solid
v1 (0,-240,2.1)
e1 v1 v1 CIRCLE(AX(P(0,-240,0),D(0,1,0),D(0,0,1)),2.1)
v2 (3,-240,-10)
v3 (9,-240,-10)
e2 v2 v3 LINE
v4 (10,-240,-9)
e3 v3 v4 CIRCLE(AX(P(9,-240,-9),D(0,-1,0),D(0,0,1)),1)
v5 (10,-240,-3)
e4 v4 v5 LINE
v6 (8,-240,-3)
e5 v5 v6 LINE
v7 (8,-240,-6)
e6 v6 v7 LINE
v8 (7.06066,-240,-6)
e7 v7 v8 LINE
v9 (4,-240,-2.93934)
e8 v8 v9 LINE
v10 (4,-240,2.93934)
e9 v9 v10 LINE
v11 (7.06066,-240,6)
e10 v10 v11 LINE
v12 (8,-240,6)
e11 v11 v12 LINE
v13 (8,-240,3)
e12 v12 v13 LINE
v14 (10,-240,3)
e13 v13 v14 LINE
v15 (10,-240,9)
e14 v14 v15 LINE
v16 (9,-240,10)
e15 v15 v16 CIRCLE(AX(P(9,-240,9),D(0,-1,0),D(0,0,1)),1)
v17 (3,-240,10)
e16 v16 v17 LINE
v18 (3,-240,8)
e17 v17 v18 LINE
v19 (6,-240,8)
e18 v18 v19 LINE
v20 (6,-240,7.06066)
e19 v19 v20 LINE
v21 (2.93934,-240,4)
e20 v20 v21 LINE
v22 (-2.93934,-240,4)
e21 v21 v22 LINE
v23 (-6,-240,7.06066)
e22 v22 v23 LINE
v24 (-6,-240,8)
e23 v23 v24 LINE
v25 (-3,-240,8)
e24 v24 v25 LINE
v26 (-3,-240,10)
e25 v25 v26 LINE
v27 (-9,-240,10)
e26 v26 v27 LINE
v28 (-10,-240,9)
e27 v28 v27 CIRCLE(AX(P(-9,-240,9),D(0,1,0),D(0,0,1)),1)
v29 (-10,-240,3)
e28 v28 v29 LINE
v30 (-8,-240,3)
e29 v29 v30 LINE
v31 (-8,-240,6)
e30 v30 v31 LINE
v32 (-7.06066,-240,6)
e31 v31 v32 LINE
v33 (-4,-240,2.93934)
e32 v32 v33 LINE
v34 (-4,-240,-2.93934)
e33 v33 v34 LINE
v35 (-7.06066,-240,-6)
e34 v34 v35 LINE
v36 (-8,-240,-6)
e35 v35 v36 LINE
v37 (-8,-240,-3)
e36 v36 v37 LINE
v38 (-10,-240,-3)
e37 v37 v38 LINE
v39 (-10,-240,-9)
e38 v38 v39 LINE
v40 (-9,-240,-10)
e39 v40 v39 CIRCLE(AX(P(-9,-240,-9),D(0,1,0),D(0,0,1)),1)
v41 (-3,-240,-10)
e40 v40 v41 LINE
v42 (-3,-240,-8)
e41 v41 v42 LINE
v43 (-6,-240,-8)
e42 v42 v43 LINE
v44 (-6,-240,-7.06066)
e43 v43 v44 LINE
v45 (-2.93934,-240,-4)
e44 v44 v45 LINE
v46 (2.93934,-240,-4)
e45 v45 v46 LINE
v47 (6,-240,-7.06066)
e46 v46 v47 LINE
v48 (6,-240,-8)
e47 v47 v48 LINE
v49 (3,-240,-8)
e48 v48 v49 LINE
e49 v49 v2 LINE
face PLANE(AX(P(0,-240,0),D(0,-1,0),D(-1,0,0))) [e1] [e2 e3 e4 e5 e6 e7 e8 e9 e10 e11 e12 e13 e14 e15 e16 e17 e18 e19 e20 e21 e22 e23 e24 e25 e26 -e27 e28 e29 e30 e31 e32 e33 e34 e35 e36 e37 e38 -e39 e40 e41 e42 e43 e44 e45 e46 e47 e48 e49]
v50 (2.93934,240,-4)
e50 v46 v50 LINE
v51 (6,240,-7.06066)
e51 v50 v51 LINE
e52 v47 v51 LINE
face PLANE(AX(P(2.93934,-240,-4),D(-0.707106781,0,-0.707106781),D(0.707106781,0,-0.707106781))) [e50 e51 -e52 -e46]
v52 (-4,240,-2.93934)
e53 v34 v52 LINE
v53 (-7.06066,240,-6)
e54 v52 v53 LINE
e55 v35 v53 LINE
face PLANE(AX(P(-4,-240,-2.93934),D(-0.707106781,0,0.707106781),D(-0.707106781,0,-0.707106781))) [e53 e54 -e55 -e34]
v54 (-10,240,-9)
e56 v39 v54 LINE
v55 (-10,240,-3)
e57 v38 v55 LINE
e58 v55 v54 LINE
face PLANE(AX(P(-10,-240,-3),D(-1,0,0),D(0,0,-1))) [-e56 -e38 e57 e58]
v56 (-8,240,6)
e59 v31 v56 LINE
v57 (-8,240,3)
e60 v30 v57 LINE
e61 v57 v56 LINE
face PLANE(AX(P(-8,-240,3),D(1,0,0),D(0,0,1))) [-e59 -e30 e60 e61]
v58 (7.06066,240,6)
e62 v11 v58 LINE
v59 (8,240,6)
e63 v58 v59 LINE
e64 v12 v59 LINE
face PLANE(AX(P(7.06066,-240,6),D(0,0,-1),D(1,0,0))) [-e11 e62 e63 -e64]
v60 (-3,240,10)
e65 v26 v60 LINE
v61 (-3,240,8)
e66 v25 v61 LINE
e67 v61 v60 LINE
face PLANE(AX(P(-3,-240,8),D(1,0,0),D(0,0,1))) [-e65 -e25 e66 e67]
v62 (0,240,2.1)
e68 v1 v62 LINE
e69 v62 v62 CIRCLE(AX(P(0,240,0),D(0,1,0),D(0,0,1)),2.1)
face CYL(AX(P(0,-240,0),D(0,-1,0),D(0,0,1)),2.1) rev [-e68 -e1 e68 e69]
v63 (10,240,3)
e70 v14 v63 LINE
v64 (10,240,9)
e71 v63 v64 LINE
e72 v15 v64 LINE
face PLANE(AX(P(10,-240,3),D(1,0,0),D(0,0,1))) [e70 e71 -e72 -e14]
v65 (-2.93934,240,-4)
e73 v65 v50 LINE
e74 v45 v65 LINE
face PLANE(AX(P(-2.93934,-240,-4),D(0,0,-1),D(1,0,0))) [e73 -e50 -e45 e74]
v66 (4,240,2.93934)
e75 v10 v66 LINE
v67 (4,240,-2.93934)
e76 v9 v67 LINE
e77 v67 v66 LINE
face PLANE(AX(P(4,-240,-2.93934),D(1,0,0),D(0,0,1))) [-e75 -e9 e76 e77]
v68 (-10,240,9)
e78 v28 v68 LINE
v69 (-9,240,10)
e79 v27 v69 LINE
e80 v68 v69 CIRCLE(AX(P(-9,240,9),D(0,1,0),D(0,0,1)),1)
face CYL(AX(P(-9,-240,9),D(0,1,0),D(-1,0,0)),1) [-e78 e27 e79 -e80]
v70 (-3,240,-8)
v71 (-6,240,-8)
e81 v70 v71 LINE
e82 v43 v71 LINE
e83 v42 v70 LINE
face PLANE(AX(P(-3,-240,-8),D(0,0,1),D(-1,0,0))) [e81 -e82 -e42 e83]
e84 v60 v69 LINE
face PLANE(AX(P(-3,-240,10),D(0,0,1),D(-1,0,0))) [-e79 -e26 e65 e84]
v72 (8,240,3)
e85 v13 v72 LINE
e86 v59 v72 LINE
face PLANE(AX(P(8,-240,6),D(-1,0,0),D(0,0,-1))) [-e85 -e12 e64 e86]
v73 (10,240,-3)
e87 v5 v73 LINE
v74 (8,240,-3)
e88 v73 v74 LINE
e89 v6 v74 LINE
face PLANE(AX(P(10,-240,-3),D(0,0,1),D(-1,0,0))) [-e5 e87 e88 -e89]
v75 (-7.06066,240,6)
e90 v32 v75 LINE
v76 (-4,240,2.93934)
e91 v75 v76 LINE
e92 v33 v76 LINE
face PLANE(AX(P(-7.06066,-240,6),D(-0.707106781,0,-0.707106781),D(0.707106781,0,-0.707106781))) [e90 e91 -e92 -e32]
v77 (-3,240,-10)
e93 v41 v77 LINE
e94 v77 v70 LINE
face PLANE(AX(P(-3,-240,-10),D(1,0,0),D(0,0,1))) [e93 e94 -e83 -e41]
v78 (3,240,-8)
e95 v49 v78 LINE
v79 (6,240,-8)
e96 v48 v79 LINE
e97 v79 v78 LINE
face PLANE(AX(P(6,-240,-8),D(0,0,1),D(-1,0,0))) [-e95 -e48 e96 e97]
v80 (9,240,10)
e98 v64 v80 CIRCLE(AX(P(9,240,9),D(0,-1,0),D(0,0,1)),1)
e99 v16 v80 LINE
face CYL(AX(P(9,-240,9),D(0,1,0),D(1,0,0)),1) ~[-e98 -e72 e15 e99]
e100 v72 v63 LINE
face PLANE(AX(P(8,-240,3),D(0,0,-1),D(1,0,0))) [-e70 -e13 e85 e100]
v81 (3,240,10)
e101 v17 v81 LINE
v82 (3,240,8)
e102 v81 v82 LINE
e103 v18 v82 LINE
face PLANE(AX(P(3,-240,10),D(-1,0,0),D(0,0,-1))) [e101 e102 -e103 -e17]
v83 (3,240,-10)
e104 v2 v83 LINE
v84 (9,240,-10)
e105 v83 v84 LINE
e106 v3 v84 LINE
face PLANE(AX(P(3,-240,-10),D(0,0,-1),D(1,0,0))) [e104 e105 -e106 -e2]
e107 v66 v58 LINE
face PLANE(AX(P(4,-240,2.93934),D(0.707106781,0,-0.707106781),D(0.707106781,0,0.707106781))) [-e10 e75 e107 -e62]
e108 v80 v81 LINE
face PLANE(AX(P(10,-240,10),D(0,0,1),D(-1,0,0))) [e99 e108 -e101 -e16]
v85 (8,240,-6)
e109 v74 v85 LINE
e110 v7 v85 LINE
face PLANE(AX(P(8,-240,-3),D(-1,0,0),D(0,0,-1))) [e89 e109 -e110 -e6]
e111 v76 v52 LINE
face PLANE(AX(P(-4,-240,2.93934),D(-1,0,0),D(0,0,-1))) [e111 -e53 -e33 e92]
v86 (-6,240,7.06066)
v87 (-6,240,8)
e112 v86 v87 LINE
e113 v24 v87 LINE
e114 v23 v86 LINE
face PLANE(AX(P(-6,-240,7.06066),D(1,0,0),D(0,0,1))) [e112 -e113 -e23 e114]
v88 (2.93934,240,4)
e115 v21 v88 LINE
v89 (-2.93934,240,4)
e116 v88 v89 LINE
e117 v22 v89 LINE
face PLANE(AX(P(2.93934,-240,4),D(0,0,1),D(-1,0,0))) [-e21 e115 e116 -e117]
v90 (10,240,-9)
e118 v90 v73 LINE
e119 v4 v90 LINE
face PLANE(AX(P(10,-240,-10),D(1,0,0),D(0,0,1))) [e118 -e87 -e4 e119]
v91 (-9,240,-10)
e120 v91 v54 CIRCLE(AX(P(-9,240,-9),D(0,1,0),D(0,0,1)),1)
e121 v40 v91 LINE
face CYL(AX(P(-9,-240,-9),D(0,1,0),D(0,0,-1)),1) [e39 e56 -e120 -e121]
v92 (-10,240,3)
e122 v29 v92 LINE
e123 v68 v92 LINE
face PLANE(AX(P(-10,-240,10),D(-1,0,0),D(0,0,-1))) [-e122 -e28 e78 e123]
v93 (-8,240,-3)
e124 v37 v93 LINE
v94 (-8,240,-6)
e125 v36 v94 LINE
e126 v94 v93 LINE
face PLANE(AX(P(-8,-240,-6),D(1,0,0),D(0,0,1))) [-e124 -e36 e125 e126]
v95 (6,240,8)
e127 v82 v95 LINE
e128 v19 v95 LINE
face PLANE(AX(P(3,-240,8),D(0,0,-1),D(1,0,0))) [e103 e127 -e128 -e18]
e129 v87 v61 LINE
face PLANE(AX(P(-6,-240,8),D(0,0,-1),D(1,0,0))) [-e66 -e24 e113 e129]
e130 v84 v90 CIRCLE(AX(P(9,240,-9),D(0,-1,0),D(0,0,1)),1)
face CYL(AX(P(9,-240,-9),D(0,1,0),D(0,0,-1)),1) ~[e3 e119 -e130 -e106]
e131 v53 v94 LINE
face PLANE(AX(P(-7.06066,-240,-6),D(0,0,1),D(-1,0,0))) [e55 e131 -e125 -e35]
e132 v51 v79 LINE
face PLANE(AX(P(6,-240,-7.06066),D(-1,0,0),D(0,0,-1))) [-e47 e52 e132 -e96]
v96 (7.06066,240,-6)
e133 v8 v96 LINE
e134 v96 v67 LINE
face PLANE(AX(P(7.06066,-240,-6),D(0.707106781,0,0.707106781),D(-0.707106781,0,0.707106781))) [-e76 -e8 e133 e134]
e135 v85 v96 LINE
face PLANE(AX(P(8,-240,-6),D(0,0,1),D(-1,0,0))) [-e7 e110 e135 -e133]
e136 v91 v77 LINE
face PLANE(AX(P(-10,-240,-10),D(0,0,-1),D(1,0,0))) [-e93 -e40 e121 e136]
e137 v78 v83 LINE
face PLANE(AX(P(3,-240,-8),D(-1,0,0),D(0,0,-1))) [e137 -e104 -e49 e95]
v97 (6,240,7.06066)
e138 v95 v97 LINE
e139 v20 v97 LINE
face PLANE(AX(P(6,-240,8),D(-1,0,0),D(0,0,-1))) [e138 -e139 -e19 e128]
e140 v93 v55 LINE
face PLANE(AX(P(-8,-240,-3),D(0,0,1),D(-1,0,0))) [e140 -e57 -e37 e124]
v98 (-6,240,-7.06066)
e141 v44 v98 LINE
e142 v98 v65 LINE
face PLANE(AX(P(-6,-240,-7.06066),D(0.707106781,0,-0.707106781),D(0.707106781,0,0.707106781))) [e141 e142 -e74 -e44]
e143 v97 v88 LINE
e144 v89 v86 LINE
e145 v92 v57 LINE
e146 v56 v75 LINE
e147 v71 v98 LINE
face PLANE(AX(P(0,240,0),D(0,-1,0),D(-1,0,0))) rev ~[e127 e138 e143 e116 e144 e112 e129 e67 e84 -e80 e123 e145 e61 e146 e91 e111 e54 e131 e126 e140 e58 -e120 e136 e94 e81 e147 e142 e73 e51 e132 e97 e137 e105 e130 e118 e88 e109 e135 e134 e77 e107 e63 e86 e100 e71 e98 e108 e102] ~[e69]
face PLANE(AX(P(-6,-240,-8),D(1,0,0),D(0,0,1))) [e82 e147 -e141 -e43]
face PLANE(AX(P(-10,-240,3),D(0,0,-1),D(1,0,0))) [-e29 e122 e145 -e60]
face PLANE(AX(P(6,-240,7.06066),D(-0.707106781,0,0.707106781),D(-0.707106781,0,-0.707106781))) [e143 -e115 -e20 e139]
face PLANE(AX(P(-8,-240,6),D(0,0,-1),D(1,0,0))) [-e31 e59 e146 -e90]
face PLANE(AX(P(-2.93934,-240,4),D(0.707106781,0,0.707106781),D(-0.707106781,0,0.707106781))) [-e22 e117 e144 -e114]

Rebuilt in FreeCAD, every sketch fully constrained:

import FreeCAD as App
import Part
import Sketcher
Q = App.Units.Quantity


def edges_at(feature, points):
    """Names of the edges that pass closest to the given points."""
    edges = feature.Shape.Edges
    near = lambda p: min(range(len(edges)), key=lambda i: edges[i].distToShape(Part.Vertex(*p))[0])
    return sorted({f"Edge{near(p) + 1}" for p in points})

doc = App.newDocument("Part")
params = doc.addObject("Spreadsheet::Sheet", "Params")
for row, (alias, value) in enumerate([
    ("sketch1_diameter", "4.2 mm"),
    ("sketch1_width", "7 mm"),
    ("sketch1_width2", "2 mm"),
    ("sketch1_width3", "3 mm"),
    ("pad1_length", "240 mm"),
    ("pad1_length2", "240 mm"),
    ("fillet_radius", "1 mm"),
], start=1):
    params.set(f"A{row}", alias)
    params.set(f"B{row}", "=" + value)
    params.setAlias(f"B{row}", alias)

body = doc.addObject("PartDesign::Body", "Body")

sketch1 = body.newObject("Sketcher::SketchObject", "Sketch")
sketch1.AttachmentSupport = (doc.getObject("XZ_Plane"), [""])
sketch1.MapMode = "FlatFace"
sketch1.addGeometry(Part.LineSegment(App.Vector(-3, -10, 0), App.Vector(-10, -10, 0)), False)
sketch1.addGeometry(Part.LineSegment(App.Vector(-10, -10, 0), App.Vector(-10, -3, 0)), False)
sketch1.addGeometry(Part.LineSegment(App.Vector(-10, -3, 0), App.Vector(-8, -3, 0)), False)
sketch1.addGeometry(Part.LineSegment(App.Vector(-8, -3, 0), App.Vector(-8, -6, 0)), False)
sketch1.addGeometry(Part.LineSegment(App.Vector(-8, -6, 0), App.Vector(-7.1, -6, 0)), False)
sketch1.addGeometry(Part.LineSegment(App.Vector(-7.1, -6, 0), App.Vector(-4, -2.9, 0)), False)
sketch1.addGeometry(Part.LineSegment(App.Vector(-4, -2.9, 0), App.Vector(-4, 2.9, 0)), False)
sketch1.addGeometry(Part.LineSegment(App.Vector(-4, 2.9, 0), App.Vector(-7.1, 6, 0)), False)
sketch1.addGeometry(Part.LineSegment(App.Vector(-7.1, 6, 0), App.Vector(-8, 6, 0)), False)
sketch1.addGeometry(Part.LineSegment(App.Vector(-8, 6, 0), App.Vector(-8, 3, 0)), False)
sketch1.addGeometry(Part.LineSegment(App.Vector(-8, 3, 0), App.Vector(-10, 3, 0)), False)
sketch1.addGeometry(Part.LineSegment(App.Vector(-10, 3, 0), App.Vector(-10, 10, 0)), False)
sketch1.addGeometry(Part.LineSegment(App.Vector(-10, 10, 0), App.Vector(-3, 10, 0)), False)
sketch1.addGeometry(Part.LineSegment(App.Vector(-3, 10, 0), App.Vector(-3, 8, 0)), False)
sketch1.addGeometry(Part.LineSegment(App.Vector(-3, 8, 0), App.Vector(-6, 8, 0)), False)
sketch1.addGeometry(Part.LineSegment(App.Vector(-6, 8, 0), App.Vector(-6, 7.1, 0)), False)
sketch1.addGeometry(Part.LineSegment(App.Vector(-6, 7.1, 0), App.Vector(-2.9, 4, 0)), False)
sketch1.addGeometry(Part.LineSegment(App.Vector(-2.9, 4, 0), App.Vector(2.9, 4, 0)), False)
sketch1.addGeometry(Part.LineSegment(App.Vector(2.9, 4, 0), App.Vector(6, 7.1, 0)), False)
sketch1.addGeometry(Part.LineSegment(App.Vector(6, 7.1, 0), App.Vector(6, 8, 0)), False)
sketch1.addGeometry(Part.LineSegment(App.Vector(6, 8, 0), App.Vector(3, 8, 0)), False)
sketch1.addGeometry(Part.LineSegment(App.Vector(3, 8, 0), App.Vector(3, 10, 0)), False)
sketch1.addGeometry(Part.LineSegment(App.Vector(3, 10, 0), App.Vector(10, 10, 0)), False)
sketch1.addGeometry(Part.LineSegment(App.Vector(10, 10, 0), App.Vector(10, 3, 0)), False)
sketch1.addGeometry(Part.LineSegment(App.Vector(10, 3, 0), App.Vector(8, 3, 0)), False)
sketch1.addGeometry(Part.LineSegment(App.Vector(8, 3, 0), App.Vector(8, 6, 0)), False)
sketch1.addGeometry(Part.LineSegment(App.Vector(8, 6, 0), App.Vector(7.1, 6, 0)), False)
sketch1.addGeometry(Part.LineSegment(App.Vector(7.1, 6, 0), App.Vector(4, 2.9, 0)), False)
sketch1.addGeometry(Part.LineSegment(App.Vector(4, 2.9, 0), App.Vector(4, -2.9, 0)), False)
sketch1.addGeometry(Part.LineSegment(App.Vector(4, -2.9, 0), App.Vector(7.1, -6, 0)), False)
sketch1.addGeometry(Part.LineSegment(App.Vector(7.1, -6, 0), App.Vector(8, -6, 0)), False)
sketch1.addGeometry(Part.LineSegment(App.Vector(8, -6, 0), App.Vector(8, -3, 0)), False)
sketch1.addGeometry(Part.LineSegment(App.Vector(8, -3, 0), App.Vector(10, -3, 0)), False)
sketch1.addGeometry(Part.LineSegment(App.Vector(10, -3, 0), App.Vector(10, -10, 0)), False)
sketch1.addGeometry(Part.LineSegment(App.Vector(10, -10, 0), App.Vector(3, -10, 0)), False)
sketch1.addGeometry(Part.LineSegment(App.Vector(3, -10, 0), App.Vector(3, -8, 0)), False)
sketch1.addGeometry(Part.LineSegment(App.Vector(3, -8, 0), App.Vector(6, -8, 0)), False)
sketch1.addGeometry(Part.LineSegment(App.Vector(6, -8, 0), App.Vector(6, -7.1, 0)), False)
sketch1.addGeometry(Part.LineSegment(App.Vector(6, -7.1, 0), App.Vector(2.9, -4, 0)), False)
sketch1.addGeometry(Part.LineSegment(App.Vector(2.9, -4, 0), App.Vector(-2.9, -4, 0)), False)
sketch1.addGeometry(Part.LineSegment(App.Vector(-2.9, -4, 0), App.Vector(-6, -7.1, 0)), False)
sketch1.addGeometry(Part.LineSegment(App.Vector(-6, -7.1, 0), App.Vector(-6, -8, 0)), False)
sketch1.addGeometry(Part.LineSegment(App.Vector(-6, -8, 0), App.Vector(-3, -8, 0)), False)
sketch1.addGeometry(Part.LineSegment(App.Vector(-3, -8, 0), App.Vector(-3, -10, 0)), False)
sketch1.addGeometry(Part.Circle(App.Vector(0, 0, 0), App.Vector(0, 0, 1), 2.1), False)
sketch1.addConstraint(Sketcher.Constraint("Coincident", 0, 2, 1, 1))
sketch1.addConstraint(Sketcher.Constraint("Coincident", 1, 2, 2, 1))
sketch1.addConstraint(Sketcher.Constraint("Coincident", 2, 2, 3, 1))
sketch1.addConstraint(Sketcher.Constraint("Coincident", 3, 2, 4, 1))
sketch1.addConstraint(Sketcher.Constraint("Coincident", 4, 2, 5, 1))
sketch1.addConstraint(Sketcher.Constraint("Coincident", 5, 2, 6, 1))
sketch1.addConstraint(Sketcher.Constraint("Coincident", 6, 2, 7, 1))
sketch1.addConstraint(Sketcher.Constraint("Coincident", 7, 2, 8, 1))
sketch1.addConstraint(Sketcher.Constraint("Coincident", 8, 2, 9, 1))
sketch1.addConstraint(Sketcher.Constraint("Coincident", 9, 2, 10, 1))
sketch1.addConstraint(Sketcher.Constraint("Coincident", 10, 2, 11, 1))
sketch1.addConstraint(Sketcher.Constraint("Coincident", 11, 2, 12, 1))
sketch1.addConstraint(Sketcher.Constraint("Coincident", 12, 2, 13, 1))
sketch1.addConstraint(Sketcher.Constraint("Coincident", 13, 2, 14, 1))
sketch1.addConstraint(Sketcher.Constraint("Coincident", 14, 2, 15, 1))
sketch1.addConstraint(Sketcher.Constraint("Coincident", 15, 2, 16, 1))
sketch1.addConstraint(Sketcher.Constraint("Coincident", 16, 2, 17, 1))
sketch1.addConstraint(Sketcher.Constraint("Coincident", 17, 2, 18, 1))
sketch1.addConstraint(Sketcher.Constraint("Coincident", 18, 2, 19, 1))
sketch1.addConstraint(Sketcher.Constraint("Coincident", 19, 2, 20, 1))
sketch1.addConstraint(Sketcher.Constraint("Coincident", 20, 2, 21, 1))
sketch1.addConstraint(Sketcher.Constraint("Coincident", 21, 2, 22, 1))
sketch1.addConstraint(Sketcher.Constraint("Coincident", 22, 2, 23, 1))
sketch1.addConstraint(Sketcher.Constraint("Coincident", 23, 2, 24, 1))
sketch1.addConstraint(Sketcher.Constraint("Coincident", 24, 2, 25, 1))
sketch1.addConstraint(Sketcher.Constraint("Coincident", 25, 2, 26, 1))
sketch1.addConstraint(Sketcher.Constraint("Coincident", 26, 2, 27, 1))
sketch1.addConstraint(Sketcher.Constraint("Coincident", 27, 2, 28, 1))
sketch1.addConstraint(Sketcher.Constraint("Coincident", 28, 2, 29, 1))
sketch1.addConstraint(Sketcher.Constraint("Coincident", 29, 2, 30, 1))
sketch1.addConstraint(Sketcher.Constraint("Coincident", 30, 2, 31, 1))
sketch1.addConstraint(Sketcher.Constraint("Coincident", 31, 2, 32, 1))
sketch1.addConstraint(Sketcher.Constraint("Coincident", 32, 2, 33, 1))
sketch1.addConstraint(Sketcher.Constraint("Coincident", 33, 2, 34, 1))
sketch1.addConstraint(Sketcher.Constraint("Coincident", 34, 2, 35, 1))
sketch1.addConstraint(Sketcher.Constraint("Coincident", 35, 2, 36, 1))
sketch1.addConstraint(Sketcher.Constraint("Coincident", 36, 2, 37, 1))
sketch1.addConstraint(Sketcher.Constraint("Coincident", 37, 2, 38, 1))
sketch1.addConstraint(Sketcher.Constraint("Coincident", 38, 2, 39, 1))
sketch1.addConstraint(Sketcher.Constraint("Coincident", 39, 2, 40, 1))
sketch1.addConstraint(Sketcher.Constraint("Coincident", 40, 2, 41, 1))
sketch1.addConstraint(Sketcher.Constraint("Coincident", 41, 2, 42, 1))
sketch1.addConstraint(Sketcher.Constraint("Coincident", 42, 2, 43, 1))
sketch1.addConstraint(Sketcher.Constraint("Coincident", 43, 2, 0, 1))
sketch1.addConstraint(Sketcher.Constraint("Horizontal", 0))
sketch1.addConstraint(Sketcher.Constraint("Vertical", 1))
sketch1.addConstraint(Sketcher.Constraint("Horizontal", 2))
sketch1.addConstraint(Sketcher.Constraint("Vertical", 3))
sketch1.addConstraint(Sketcher.Constraint("Horizontal", 4))
sketch1.addConstraint(Sketcher.Constraint("Vertical", 6))
sketch1.addConstraint(Sketcher.Constraint("Horizontal", 8))
sketch1.addConstraint(Sketcher.Constraint("Vertical", 9))
sketch1.addConstraint(Sketcher.Constraint("Horizontal", 10))
sketch1.addConstraint(Sketcher.Constraint("Vertical", 11))
sketch1.addConstraint(Sketcher.Constraint("Horizontal", 12))
sketch1.addConstraint(Sketcher.Constraint("Vertical", 13))
sketch1.addConstraint(Sketcher.Constraint("Horizontal", 14))
sketch1.addConstraint(Sketcher.Constraint("Vertical", 15))
sketch1.addConstraint(Sketcher.Constraint("Horizontal", 17))
sketch1.addConstraint(Sketcher.Constraint("Vertical", 19))
sketch1.addConstraint(Sketcher.Constraint("Horizontal", 20))
sketch1.addConstraint(Sketcher.Constraint("Vertical", 21))
sketch1.addConstraint(Sketcher.Constraint("Horizontal", 22))
sketch1.addConstraint(Sketcher.Constraint("Vertical", 23))
sketch1.addConstraint(Sketcher.Constraint("Horizontal", 24))
sketch1.addConstraint(Sketcher.Constraint("Vertical", 25))
sketch1.addConstraint(Sketcher.Constraint("Horizontal", 26))
sketch1.addConstraint(Sketcher.Constraint("Vertical", 28))
sketch1.addConstraint(Sketcher.Constraint("Horizontal", 30))
sketch1.addConstraint(Sketcher.Constraint("Vertical", 31))
sketch1.addConstraint(Sketcher.Constraint("Horizontal", 32))
sketch1.addConstraint(Sketcher.Constraint("Vertical", 33))
sketch1.addConstraint(Sketcher.Constraint("Horizontal", 34))
sketch1.addConstraint(Sketcher.Constraint("Vertical", 35))
sketch1.addConstraint(Sketcher.Constraint("Horizontal", 36))
sketch1.addConstraint(Sketcher.Constraint("Vertical", 37))
sketch1.addConstraint(Sketcher.Constraint("Horizontal", 39))
sketch1.addConstraint(Sketcher.Constraint("Vertical", 41))
sketch1.addConstraint(Sketcher.Constraint("Horizontal", 42))
sketch1.addConstraint(Sketcher.Constraint("Vertical", 43))
sketch1.addConstraint(Sketcher.Constraint("Coincident", 44, 3, -1, 1))
sketch1.addConstraint(Sketcher.Constraint("Symmetric", 0, 2, 22, 2, -1, 1))
sketch1.addConstraint(Sketcher.Constraint("Symmetric", 2, 2, 24, 2, -1, 1))
sketch1.addConstraint(Sketcher.Constraint("Symmetric", 4, 2, 26, 2, -1, 1))
sketch1.addConstraint(Sketcher.Constraint("Symmetric", 5, 2, 27, 2, -1, 1))
sketch1.addConstraint(Sketcher.Constraint("Symmetric", 7, 2, 29, 2, -1, 1))
sketch1.addConstraint(Sketcher.Constraint("Symmetric", 9, 2, 31, 2, -1, 1))
sketch1.addConstraint(Sketcher.Constraint("Symmetric", 11, 2, 33, 2, -1, 1))
sketch1.addConstraint(Sketcher.Constraint("Symmetric", 13, 2, 35, 2, -1, 1))
sketch1.addConstraint(Sketcher.Constraint("Symmetric", 15, 2, 37, 2, -1, 1))
sketch1.addConstraint(Sketcher.Constraint("Symmetric", 16, 2, 38, 2, -1, 1))
sketch1.addConstraint(Sketcher.Constraint("Symmetric", 18, 2, 40, 2, -1, 1))
sketch1.addConstraint(Sketcher.Constraint("Symmetric", 20, 2, 42, 2, -1, 1))
sketch1.addConstraint(Sketcher.Constraint("Symmetric", 15, 2, 18, 2, -2))
sketch1.addConstraint(Sketcher.Constraint("Symmetric", 13, 2, 20, 2, -2))
sketch1.addConstraint(Sketcher.Constraint("Symmetric", 11, 2, 22, 2, -2))
sketch1.addConstraint(Sketcher.Constraint("Symmetric", 9, 2, 24, 2, -2))
sketch1.addConstraint(Sketcher.Constraint("Symmetric", 7, 2, 26, 2, -2))
sketch1.addConstraint(Sketcher.Constraint("Perpendicular", 5, 7))
sketch1.addConstraint(Sketcher.Constraint("Parallel", 7, 16))
sketch1.addConstraint(Sketcher.Constraint("Perpendicular", 16, 18))
sketch1.addConstraint(Sketcher.Constraint("Perpendicular", 27, 29))
sketch1.addConstraint(Sketcher.Constraint("Perpendicular", 38, 40))
sketch1.addConstraint(Sketcher.Constraint("Horizontal", 6, 2, 27, 2))
sketch1.addConstraint(Sketcher.Constraint("Equal", 34, 1))
sketch1.addConstraint(Sketcher.Constraint("Equal", 42, 3))
sketch1.addConstraint(Sketcher.Constraint("Equal", 39, 6))
sketch1.addConstraint(Sketcher.Constraint("Equal", 32, 13))
sketch1.addConstraint(Sketcher.Constraint("Equal", 30, 15))
sketch1.addConstraint(Sketcher.Constraint("Equal", 7, 16))
sketch1.addConstraint(Sketcher.Constraint("Diameter", 44, Q("4.2 mm")))
sketch1.addConstraint(Sketcher.Constraint("DistanceX", 0, 2, 0, 1, Q("7 mm")))
sketch1.addConstraint(Sketcher.Constraint("DistanceX", 2, 1, 2, 2, Q("2 mm")))
sketch1.addConstraint(Sketcher.Constraint("DistanceX", 14, 2, 14, 1, Q("3 mm")))
sketch1.addConstraint(Sketcher.Constraint("DistanceX", 0, 2, -1, 1, Q("10 mm")))
sketch1.addConstraint(Sketcher.Constraint("DistanceX", 5, 2, -1, 1, Q("4 mm")))
sketch1.addConstraint(Sketcher.Constraint("DistanceX", 4, 1, 4, 2, Q("0.93934 mm")))
sketch1.setExpression("Constraints[110]", "Params.sketch1_diameter")
sketch1.setExpression("Constraints[111]", "Params.sketch1_width")
sketch1.setExpression("Constraints[112]", "Params.sketch1_width2")
sketch1.setExpression("Constraints[113]", "Params.sketch1_width3")
pad1 = body.newObject("PartDesign::Pad", "Pad")
pad1.Profile = sketch1
pad1.Type = "TwoLengths"
pad1.setExpression("Length", "Params.pad1_length")
pad1.setExpression("Length2", "Params.pad1_length2")
pad1.Reversed = True
doc.recompute()

fillet = body.newObject("PartDesign::Fillet", "Fillet")
fillet.Base = (pad1, edges_at(pad1, [
    (-10, 0, -10),
    (10, 0, -10),
    (10, 0, 10),
    (-10, 0, 10),
]))
fillet.setExpression("Radius", "Params.fillet_radius")

doc.recompute()
